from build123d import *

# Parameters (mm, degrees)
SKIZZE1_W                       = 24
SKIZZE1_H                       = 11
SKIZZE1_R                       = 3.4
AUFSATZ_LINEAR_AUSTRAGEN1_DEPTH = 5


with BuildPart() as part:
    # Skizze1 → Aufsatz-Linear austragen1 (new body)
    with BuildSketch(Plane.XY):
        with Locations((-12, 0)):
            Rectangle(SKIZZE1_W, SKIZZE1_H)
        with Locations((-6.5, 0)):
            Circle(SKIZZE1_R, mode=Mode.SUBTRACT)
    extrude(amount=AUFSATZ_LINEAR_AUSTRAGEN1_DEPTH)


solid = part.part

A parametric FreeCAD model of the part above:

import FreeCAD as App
import Part
import Sketcher
from FreeCAD import Vector

doc = App.newDocument("Part")
body = doc.addObject("PartDesign::Body", "Body")

sketch1 = body.newObject("Sketcher::SketchObject", "Sketch")
sketch1.AttachmentSupport = (doc.getObject("XY_Plane"), [""])
sketch1.MapMode = "FlatFace"
sketch1.addGeometry([
    Part.LineSegment(Vector(-24, 5.5, 0), Vector(-24, -5.5, 0)),
    Part.LineSegment(Vector(-24, -5.5, 0), Vector(0, -5.5, 0)),
    Part.LineSegment(Vector(0, -5.5, 0), Vector(0, 5.5, 0)),
    Part.LineSegment(Vector(0, 5.5, 0), Vector(-24, 5.5, 0)),
    Part.Circle(Vector(-6.5, 0, 0), Vector(0, 0, 1), 3.4),
], False)
sketch1.addConstraint([
    Sketcher.Constraint("Coincident", 0, 2, 1, 1),
    Sketcher.Constraint("Coincident", 1, 2, 2, 1),
    Sketcher.Constraint("Coincident", 2, 2, 3, 1),
    Sketcher.Constraint("Coincident", 3, 2, 0, 1),
    Sketcher.Constraint("Vertical", 0),
    Sketcher.Constraint("Horizontal", 1),
    Sketcher.Constraint("Vertical", 2),
    Sketcher.Constraint("Horizontal", 3),
    Sketcher.Constraint("Symmetric", 1, 2, 2, 2, -1, 1),
    Sketcher.Constraint("PointOnObject", 4, 3, -1),
    Sketcher.Constraint("Diameter", 4, 6.8),
    Sketcher.Constraint("DistanceX", 1, 1, 1, 2, 24.0),
    Sketcher.Constraint("DistanceY", 0, 2, 0, 1, 11.0),
    Sketcher.Constraint("DistanceX", 4, 3, -1, 1, 6.5),
])
pad1 = body.newObject("PartDesign::Pad", "Pad")
pad1.Profile = sketch1
pad1.Length = 5

doc.recompute()
